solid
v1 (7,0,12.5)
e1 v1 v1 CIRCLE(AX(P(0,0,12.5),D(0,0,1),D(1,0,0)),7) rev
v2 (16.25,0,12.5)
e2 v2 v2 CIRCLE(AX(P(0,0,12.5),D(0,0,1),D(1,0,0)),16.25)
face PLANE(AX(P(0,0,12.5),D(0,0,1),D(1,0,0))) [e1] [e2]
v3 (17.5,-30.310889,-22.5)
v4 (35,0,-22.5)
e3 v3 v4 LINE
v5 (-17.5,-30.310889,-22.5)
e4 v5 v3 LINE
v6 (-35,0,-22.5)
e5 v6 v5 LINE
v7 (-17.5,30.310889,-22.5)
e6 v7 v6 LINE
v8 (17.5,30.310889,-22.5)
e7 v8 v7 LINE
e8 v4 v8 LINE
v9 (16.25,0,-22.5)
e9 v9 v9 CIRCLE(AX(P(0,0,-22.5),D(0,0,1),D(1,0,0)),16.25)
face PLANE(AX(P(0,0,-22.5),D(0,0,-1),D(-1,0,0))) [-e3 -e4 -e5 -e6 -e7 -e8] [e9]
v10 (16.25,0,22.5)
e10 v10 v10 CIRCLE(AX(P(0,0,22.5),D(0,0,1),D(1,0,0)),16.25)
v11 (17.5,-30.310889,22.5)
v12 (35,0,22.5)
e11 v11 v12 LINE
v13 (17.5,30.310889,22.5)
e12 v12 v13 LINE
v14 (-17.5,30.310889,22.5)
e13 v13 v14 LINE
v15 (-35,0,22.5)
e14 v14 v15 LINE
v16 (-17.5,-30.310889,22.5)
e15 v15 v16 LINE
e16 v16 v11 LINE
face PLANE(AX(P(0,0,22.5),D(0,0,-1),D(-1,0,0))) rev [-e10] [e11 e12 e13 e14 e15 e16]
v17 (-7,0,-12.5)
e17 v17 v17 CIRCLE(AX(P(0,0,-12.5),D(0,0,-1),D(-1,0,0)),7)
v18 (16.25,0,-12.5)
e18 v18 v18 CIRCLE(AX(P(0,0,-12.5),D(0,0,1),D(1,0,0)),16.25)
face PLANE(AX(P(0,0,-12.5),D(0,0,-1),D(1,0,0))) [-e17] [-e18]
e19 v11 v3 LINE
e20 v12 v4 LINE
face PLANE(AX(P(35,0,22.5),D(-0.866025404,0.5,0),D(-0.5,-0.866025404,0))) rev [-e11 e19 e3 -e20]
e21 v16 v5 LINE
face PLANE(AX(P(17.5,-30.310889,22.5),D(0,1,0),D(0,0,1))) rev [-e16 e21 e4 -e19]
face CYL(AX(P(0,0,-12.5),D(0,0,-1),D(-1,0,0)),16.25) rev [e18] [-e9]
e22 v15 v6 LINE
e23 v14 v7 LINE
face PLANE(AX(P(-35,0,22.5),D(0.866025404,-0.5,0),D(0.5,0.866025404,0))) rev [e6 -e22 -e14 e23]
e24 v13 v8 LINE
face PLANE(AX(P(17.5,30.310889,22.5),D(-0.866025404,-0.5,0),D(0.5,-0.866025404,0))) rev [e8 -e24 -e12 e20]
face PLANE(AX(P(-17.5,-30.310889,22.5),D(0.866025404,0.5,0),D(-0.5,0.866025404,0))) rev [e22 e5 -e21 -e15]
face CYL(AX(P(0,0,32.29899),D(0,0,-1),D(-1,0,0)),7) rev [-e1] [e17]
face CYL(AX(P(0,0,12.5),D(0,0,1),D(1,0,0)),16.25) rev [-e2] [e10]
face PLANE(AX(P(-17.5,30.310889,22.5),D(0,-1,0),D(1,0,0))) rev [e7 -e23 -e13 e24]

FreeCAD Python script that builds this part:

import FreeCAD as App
import Part
import Sketcher

V = App.Vector
Q = App.Units.Quantity

doc = App.newDocument("Part")
body = doc.addObject("PartDesign::Body", "Body")

sketch1 = body.newObject("Sketcher::SketchObject", "Sketch")
sketch1.AttachmentSupport = (doc.getObject("XY_Plane"), [""])
sketch1.MapMode = "FlatFace"
sketch1.addGeometry(Part.LineSegment(V(18, 30, 0), V(-18, 30, 0)), False)
sketch1.addGeometry(Part.LineSegment(V(-18, 30, 0), V(-35, 0, 0)), False)
sketch1.addGeometry(Part.LineSegment(V(-35, 0, 0), V(-18, -30, 0)), False)
sketch1.addGeometry(Part.LineSegment(V(-18, -30, 0), V(18, -30, 0)), False)
sketch1.addGeometry(Part.LineSegment(V(18, -30, 0), V(35, 0, 0)), False)
sketch1.addGeometry(Part.LineSegment(V(35, 0, 0), V(18, 30, 0)), False)
sketch1.addConstraint(Sketcher.Constraint("Coincident", 0, 2, 1, 1))
sketch1.addConstraint(Sketcher.Constraint("Coincident", 1, 2, 2, 1))
sketch1.addConstraint(Sketcher.Constraint("Coincident", 2, 2, 3, 1))
sketch1.addConstraint(Sketcher.Constraint("Coincident", 3, 2, 4, 1))
sketch1.addConstraint(Sketcher.Constraint("Coincident", 4, 2, 5, 1))
sketch1.addConstraint(Sketcher.Constraint("Coincident", 5, 2, 0, 1))
sketch1.addConstraint(Sketcher.Constraint("Horizontal", 0))
sketch1.addConstraint(Sketcher.Constraint("Horizontal", 3))
sketch1.addConstraint(Sketcher.Constraint("Symmetric", 0, 2, 3, 2, -1, 1))
sketch1.addConstraint(Sketcher.Constraint("Symmetric", 1, 2, 4, 2, -1, 1))
sketch1.addConstraint(Sketcher.Constraint("PointOnObject", 1, 2, -1))
sketch1.addConstraint(Sketcher.Constraint("Parallel", 2, 5))
sketch1.addConstraint(Sketcher.Constraint("Vertical", 0, 2, 2, 2))
sketch1.addConstraint(Sketcher.Constraint("DistanceX", 0, 2, 0, 1, 35.0))
sketch1.addConstraint(Sketcher.Constraint("Angle", 1, Q("-120 deg")))
sketch1.addConstraint(Sketcher.Constraint("Distance", 1, 35.0))
pad1 = body.newObject("PartDesign::Pad", "Pad")
pad1.Profile = sketch1
pad1.Length = 45
pad1.Midplane = True

sketch2 = body.newObject("Sketcher::SketchObject", "Sketch001")
sketch2.AttachmentSupport = (doc.getObject("XY_Plane"), [""])
sketch2.MapMode = "FlatFace"
sketch2.AttachmentOffset = App.Placement(V(0, 0, 22.5), App.Rotation())
sketch2.addGeometry(Part.Circle(V(0, 0, 0), V(0, 0, 1), 16), False)
sketch2.addConstraint(Sketcher.Constraint("Coincident", 0, 3, -1, 1))
sketch2.addConstraint(Sketcher.Constraint("Diameter", 0, 32.5))
pocket1 = body.newObject("PartDesign::Pocket", "Pocket")
pocket1.Profile = sketch2
pocket1.Length = 10
doc.recompute()

mirrored = body.newObject("PartDesign::Mirrored", "Mirrored")
mirrored.Originals = [pocket1]
mirrored.MirrorPlane = (doc.getObject("XY_Plane"), [""])
body.Tip = mirrored

sketch3 = body.newObject("Sketcher::SketchObject", "Sketch002")
sketch3.AttachmentSupport = (doc.getObject("XY_Plane"), [""])
sketch3.MapMode = "FlatFace"
sketch3.AttachmentOffset = App.Placement(V(0, 0, -12.5), App.Rotation())
sketch3.addGeometry(Part.Circle(V(0, 0, 0), V(0, 0, 1), 7), False)
sketch3.addConstraint(Sketcher.Constraint("Coincident", 0, 3, -1, 1))
sketch3.addConstraint(Sketcher.Constraint("Diameter", 0, 14.0))
pocket2 = body.newObject("PartDesign::Pocket", "Pocket001")
pocket2.Profile = sketch3
pocket2.Length = 25
pocket2.Reversed = True

doc.recompute()
